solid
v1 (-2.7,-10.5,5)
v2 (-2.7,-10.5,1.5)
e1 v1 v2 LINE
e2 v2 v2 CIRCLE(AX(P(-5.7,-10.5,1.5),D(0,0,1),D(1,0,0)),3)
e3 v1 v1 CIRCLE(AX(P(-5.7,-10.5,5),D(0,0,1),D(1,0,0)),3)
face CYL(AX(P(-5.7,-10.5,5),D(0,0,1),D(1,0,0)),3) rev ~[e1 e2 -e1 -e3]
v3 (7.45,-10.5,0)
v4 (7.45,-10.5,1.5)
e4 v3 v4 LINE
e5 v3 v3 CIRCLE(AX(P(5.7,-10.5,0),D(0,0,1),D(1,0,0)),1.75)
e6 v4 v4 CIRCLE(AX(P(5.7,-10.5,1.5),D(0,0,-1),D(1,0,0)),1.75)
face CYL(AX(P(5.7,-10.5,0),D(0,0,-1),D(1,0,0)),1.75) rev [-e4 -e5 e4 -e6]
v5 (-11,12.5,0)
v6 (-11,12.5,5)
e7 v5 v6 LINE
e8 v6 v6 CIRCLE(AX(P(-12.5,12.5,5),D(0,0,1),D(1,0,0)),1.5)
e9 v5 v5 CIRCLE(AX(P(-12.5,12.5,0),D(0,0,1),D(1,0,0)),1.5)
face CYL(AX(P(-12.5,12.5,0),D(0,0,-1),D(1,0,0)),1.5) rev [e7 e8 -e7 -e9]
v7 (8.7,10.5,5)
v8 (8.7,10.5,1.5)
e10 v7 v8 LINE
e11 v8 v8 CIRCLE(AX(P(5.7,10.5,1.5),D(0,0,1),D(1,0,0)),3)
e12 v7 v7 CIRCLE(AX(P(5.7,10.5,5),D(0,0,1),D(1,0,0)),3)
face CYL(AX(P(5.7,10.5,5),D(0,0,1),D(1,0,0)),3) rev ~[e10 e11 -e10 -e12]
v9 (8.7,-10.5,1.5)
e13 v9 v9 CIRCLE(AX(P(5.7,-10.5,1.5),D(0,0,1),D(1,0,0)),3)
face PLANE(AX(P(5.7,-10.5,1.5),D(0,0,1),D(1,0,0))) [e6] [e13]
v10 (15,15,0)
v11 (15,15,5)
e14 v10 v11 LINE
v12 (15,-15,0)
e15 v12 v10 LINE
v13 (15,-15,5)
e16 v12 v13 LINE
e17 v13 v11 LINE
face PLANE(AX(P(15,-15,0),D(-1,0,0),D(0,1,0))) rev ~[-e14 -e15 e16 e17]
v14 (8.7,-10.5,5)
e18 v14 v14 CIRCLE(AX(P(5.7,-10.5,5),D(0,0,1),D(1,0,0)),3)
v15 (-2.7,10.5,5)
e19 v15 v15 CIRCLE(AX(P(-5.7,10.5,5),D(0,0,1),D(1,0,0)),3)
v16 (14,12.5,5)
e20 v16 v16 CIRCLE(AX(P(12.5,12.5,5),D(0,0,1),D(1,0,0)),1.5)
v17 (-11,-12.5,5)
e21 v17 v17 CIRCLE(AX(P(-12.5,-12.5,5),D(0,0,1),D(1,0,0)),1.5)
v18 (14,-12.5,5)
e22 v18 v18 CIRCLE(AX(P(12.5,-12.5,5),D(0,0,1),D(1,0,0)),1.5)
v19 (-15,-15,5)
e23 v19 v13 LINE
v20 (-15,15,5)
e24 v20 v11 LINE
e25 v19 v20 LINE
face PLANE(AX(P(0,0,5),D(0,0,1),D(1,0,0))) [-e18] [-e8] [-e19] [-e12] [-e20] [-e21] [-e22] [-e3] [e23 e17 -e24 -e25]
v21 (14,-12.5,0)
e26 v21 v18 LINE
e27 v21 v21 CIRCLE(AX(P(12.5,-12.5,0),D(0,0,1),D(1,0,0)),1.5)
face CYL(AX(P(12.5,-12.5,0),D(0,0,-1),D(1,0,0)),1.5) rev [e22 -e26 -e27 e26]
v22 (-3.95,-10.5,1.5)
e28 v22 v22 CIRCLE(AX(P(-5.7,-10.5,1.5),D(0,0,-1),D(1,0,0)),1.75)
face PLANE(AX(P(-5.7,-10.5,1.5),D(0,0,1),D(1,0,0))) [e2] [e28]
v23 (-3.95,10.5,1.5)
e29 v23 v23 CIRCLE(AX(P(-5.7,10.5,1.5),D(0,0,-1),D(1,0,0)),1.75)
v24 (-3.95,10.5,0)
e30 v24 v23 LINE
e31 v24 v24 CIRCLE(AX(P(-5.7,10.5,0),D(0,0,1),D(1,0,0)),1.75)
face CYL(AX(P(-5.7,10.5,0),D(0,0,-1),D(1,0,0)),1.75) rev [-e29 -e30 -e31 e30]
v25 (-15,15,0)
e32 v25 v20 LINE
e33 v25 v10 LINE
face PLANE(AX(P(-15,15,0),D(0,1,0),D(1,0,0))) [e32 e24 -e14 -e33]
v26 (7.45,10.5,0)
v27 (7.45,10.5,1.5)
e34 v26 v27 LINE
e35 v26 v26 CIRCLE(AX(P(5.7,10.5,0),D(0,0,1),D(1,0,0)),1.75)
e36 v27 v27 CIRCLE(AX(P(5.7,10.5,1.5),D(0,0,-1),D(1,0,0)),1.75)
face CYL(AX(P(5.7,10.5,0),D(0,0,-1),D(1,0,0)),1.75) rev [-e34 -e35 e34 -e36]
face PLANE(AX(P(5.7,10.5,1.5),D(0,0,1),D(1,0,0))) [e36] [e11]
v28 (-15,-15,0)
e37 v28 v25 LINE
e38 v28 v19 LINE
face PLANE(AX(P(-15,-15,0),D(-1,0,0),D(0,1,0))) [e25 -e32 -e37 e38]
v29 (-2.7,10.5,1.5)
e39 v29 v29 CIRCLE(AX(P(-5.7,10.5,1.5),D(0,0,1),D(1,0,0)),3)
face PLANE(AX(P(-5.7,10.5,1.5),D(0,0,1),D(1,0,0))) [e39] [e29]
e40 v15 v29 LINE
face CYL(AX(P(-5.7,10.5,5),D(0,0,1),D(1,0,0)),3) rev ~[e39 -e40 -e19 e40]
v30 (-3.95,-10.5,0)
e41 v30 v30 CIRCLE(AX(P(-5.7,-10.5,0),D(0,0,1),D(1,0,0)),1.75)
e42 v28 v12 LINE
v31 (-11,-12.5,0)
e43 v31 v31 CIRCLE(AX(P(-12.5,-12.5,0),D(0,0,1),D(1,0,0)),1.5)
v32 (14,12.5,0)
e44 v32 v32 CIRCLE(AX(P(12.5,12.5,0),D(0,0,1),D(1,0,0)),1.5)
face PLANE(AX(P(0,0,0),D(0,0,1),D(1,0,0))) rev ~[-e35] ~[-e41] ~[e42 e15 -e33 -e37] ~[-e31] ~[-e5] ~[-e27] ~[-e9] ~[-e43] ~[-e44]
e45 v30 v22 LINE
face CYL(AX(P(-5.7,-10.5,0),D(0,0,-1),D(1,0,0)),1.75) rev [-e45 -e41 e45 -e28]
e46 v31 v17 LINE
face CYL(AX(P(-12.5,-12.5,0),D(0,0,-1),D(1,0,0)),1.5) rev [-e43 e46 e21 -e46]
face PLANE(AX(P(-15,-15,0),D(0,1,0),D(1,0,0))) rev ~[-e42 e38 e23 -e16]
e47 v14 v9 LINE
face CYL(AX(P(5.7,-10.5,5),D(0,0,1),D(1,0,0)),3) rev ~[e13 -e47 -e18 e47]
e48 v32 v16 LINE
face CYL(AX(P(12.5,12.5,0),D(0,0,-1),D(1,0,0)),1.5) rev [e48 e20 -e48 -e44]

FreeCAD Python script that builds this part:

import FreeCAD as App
import Part
import Sketcher
from FreeCAD import Vector


def add_polygon(sketch, points):
    """Adds a closed chain of lines whose ends are joined by coincident constraints."""
    first, n = sketch.GeometryCount, len(points)
    for a, b in zip(points, points[1:] + points[:1]):
        sketch.addGeometry(Part.LineSegment(App.Vector(*a, 0), App.Vector(*b, 0)), False)
    for i in range(n):
        sketch.addConstraint(Sketcher.Constraint("Coincident", first + i, 2, first + (i + 1) % n, 1))

doc = App.newDocument("Part")
params = doc.addObject("Spreadsheet::Sheet", "Params")
for row, (alias, value) in enumerate([
    ("sketch1_diameter", "3 mm"),
    ("sketch1_diameter2", "3.5 mm"),
    ("sketch1_width", "30 mm"),
    ("pad1_length", "5 mm"),
    ("sketch2_diameter", "6 mm"),
    ("pocket1_length", "3.5 mm"),
], start=1):
    params.set(f"A{row}", alias)
    params.set(f"B{row}", "=" + value)
    params.setAlias(f"B{row}", alias)

body = doc.addObject("PartDesign::Body", "Body")

sketch1 = body.newObject("Sketcher::SketchObject", "Sketch")
sketch1.AttachmentSupport = (doc.getObject("XY_Plane"), [""])
sketch1.MapMode = "FlatFace"
add_polygon(sketch1, [(-15, 15), (-15, -15), (15, -15), (15, 15)])
sketch1.addGeometry(Part.Circle(Vector(-12.5, -12.5, 0), Vector(0, 0, 1), 1.5), False)
sketch1.addGeometry(Part.Circle(Vector(-5.7, -10.5, 0), Vector(0, 0, 1), 1.8), False)
sketch1.addGeometry(Part.Circle(Vector(5.7, -10.5, 0), Vector(0, 0, 1), 1.8), False)
sketch1.addGeometry(Part.Circle(Vector(12.5, -12.5, 0), Vector(0, 0, 1), 1.5), False)
sketch1.addGeometry(Part.Circle(Vector(-12.5, 12.5, 0), Vector(0, 0, 1), 1.5), False)
sketch1.addGeometry(Part.Circle(Vector(-5.7, 10.5, 0), Vector(0, 0, 1), 1.8), False)
sketch1.addGeometry(Part.Circle(Vector(5.7, 10.5, 0), Vector(0, 0, 1), 1.8), False)
sketch1.addGeometry(Part.Circle(Vector(12.5, 12.5, 0), Vector(0, 0, 1), 1.5), False)
sketch1.addConstraint(Sketcher.Constraint("Vertical", 0))
sketch1.addConstraint(Sketcher.Constraint("Horizontal", 1))
sketch1.addConstraint(Sketcher.Constraint("Vertical", 2))
sketch1.addConstraint(Sketcher.Constraint("Horizontal", 3))
sketch1.addConstraint(Sketcher.Constraint("Equal", 5, 6))
sketch1.addConstraint(Sketcher.Constraint("Equal", 4, 7))
sketch1.addConstraint(Sketcher.Constraint("Equal", 7, 8))
sketch1.addConstraint(Sketcher.Constraint("Equal", 6, 9))
sketch1.addConstraint(Sketcher.Constraint("Equal", 9, 10))
sketch1.addConstraint(Sketcher.Constraint("Equal", 8, 11))
sketch1.addConstraint(Sketcher.Constraint("Symmetric", 7, 3, 8, 3, -1, 1))
sketch1.addConstraint(Sketcher.Constraint("Symmetric", 6, 3, 9, 3, -1, 1))
sketch1.addConstraint(Sketcher.Constraint("Symmetric", 5, 3, 10, 3, -1, 1))
sketch1.addConstraint(Sketcher.Constraint("Symmetric", 4, 3, 11, 3, -1, 1))
sketch1.addConstraint(Sketcher.Constraint("Symmetric", 0, 2, 2, 2, -1, 1))
sketch1.addConstraint(Sketcher.Constraint("Symmetric", 5, 3, 6, 3, -2))
sketch1.addConstraint(Sketcher.Constraint("Symmetric", 4, 3, 7, 3, -2))
sketch1.addConstraint(Sketcher.Constraint("Equal", 3, 0))
sketch1.addConstraint(Sketcher.Constraint("Diameter", 4, 3.0))
sketch1.addConstraint(Sketcher.Constraint("Diameter", 5, 3.5))
sketch1.addConstraint(Sketcher.Constraint("DistanceX", 1, 1, 1, 2, 30.0))
sketch1.addConstraint(Sketcher.Constraint("DistanceY", 4, 3, 5, 3, 2.0))
sketch1.addConstraint(Sketcher.Constraint("DistanceX", 4, 3, 7, 3, 25.0))
sketch1.addConstraint(Sketcher.Constraint("DistanceY", 5, 3, 8, 3, 23.0))
sketch1.addConstraint(Sketcher.Constraint("DistanceX", 5, 3, -1, 1, 5.7))
sketch1.setExpression("Constraints[22]", "Params.sketch1_diameter")
sketch1.setExpression("Constraints[23]", "Params.sketch1_diameter2")
sketch1.setExpression("Constraints[24]", "Params.sketch1_width")
pad1 = body.newObject("PartDesign::Pad", "Pad")
pad1.Profile = sketch1
pad1.setExpression("Length", "Params.pad1_length")

sketch2 = body.newObject("Sketcher::SketchObject", "Sketch001")
sketch2.AttachmentSupport = (doc.getObject("XY_Plane"), [""])
sketch2.MapMode = "FlatFace"
sketch2.AttachmentOffset = App.Placement(Vector(0, 0, 5), App.Rotation())
sketch2.addGeometry(Part.Circle(Vector(-5.7, 10.5, 0), Vector(0, 0, 1), 3), False)
sketch2.addGeometry(Part.Circle(Vector(5.7, 10.5, 0), Vector(0, 0, 1), 3), False)
sketch2.addGeometry(Part.Circle(Vector(5.7, -10.5, 0), Vector(0, 0, 1), 3), False)
sketch2.addGeometry(Part.Circle(Vector(-5.7, -10.5, 0), Vector(0, 0, 1), 3), False)
sketch2.addConstraint(Sketcher.Constraint("Equal", 0, 1))
sketch2.addConstraint(Sketcher.Constraint("Equal", 1, 2))
sketch2.addConstraint(Sketcher.Constraint("Equal", 2, 3))
sketch2.addConstraint(Sketcher.Constraint("Symmetric", 0, 3, 2, 3, -1, 1))
sketch2.addConstraint(Sketcher.Constraint("Symmetric", 1, 3, 3, 3, -1, 1))
sketch2.addConstraint(Sketcher.Constraint("Symmetric", 0, 3, 1, 3, -2))
sketch2.addConstraint(Sketcher.Constraint("Diameter", 0, 6.0))
sketch2.addConstraint(Sketcher.Constraint("DistanceY", 2, 3, 1, 3, 21.0))
sketch2.addConstraint(Sketcher.Constraint("DistanceX", 0, 3, -1, 1, 5.7))
sketch2.setExpression("Constraints[6]", "Params.sketch2_diameter")
pocket1 = body.newObject("PartDesign::Pocket", "Pocket")
pocket1.Profile = sketch2
pocket1.setExpression("Length", "Params.pocket1_length")

doc.recompute()
